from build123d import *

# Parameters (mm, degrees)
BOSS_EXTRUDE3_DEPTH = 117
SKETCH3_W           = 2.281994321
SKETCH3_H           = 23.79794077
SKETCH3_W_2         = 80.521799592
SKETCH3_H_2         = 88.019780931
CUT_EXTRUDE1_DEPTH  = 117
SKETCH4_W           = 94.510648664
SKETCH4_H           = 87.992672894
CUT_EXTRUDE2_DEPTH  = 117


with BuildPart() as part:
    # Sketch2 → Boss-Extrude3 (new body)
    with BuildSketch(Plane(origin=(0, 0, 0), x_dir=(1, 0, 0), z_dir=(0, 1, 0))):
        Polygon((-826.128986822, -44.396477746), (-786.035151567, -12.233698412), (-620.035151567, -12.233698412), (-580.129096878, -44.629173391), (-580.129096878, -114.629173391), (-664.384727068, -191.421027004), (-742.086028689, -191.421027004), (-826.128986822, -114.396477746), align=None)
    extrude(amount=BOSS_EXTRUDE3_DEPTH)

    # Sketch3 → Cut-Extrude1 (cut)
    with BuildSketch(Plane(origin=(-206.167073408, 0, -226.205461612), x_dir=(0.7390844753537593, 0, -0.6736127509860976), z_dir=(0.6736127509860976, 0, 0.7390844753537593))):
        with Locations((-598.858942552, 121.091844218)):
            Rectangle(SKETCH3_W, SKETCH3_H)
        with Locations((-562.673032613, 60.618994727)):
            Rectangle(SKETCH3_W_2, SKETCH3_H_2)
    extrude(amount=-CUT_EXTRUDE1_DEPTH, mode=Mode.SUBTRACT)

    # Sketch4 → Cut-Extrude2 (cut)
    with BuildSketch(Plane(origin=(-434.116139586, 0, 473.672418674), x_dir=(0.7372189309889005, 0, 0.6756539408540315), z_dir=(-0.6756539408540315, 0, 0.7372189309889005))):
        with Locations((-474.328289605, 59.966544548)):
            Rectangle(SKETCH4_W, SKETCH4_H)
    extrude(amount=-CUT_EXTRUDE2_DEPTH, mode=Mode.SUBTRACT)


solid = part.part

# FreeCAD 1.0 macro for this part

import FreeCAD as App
import Part
import Sketcher

V = App.Vector
Q = App.Units.Quantity

doc = App.newDocument("Part")
body = doc.addObject("PartDesign::Body", "Body")

# Sketch on XZ plane
sketch1 = doc.addObject("Sketcher::SketchObject", "Sketch")
body.addObject(sketch1)
sketch1.AttachmentSupport = (doc.XZ_Plane, [""])
sketch1.MapMode = "FlatFace"
sketch1.addGeometry([
    Part.LineSegment(V(-786, 12, 0), V(-826, 44, 0)),  # 0
    Part.LineSegment(V(-826, 44, 0), V(-826, 114, 0)),  # 1
    Part.LineSegment(V(-826, 114, 0), V(-742, 191, 0)),  # 2
    Part.LineSegment(V(-742, 191, 0), V(-664, 191, 0)),  # 3
    Part.LineSegment(V(-664, 191, 0), V(-580, 115, 0)),  # 4
    Part.LineSegment(V(-580, 115, 0), V(-580, 45, 0)),  # 5
    Part.LineSegment(V(-580, 45, 0), V(-620, 12, 0)),  # 6
    Part.LineSegment(V(-620, 12, 0), V(-786, 12, 0)),  # 7
], False)
sketch1.addConstraint([
    Sketcher.Constraint("Coincident", 0, 2, 1, 1),
    Sketcher.Constraint("Coincident", 1, 2, 2, 1),
    Sketcher.Constraint("Coincident", 2, 2, 3, 1),
    Sketcher.Constraint("Coincident", 3, 2, 4, 1),
    Sketcher.Constraint("Coincident", 4, 2, 5, 1),
    Sketcher.Constraint("Coincident", 5, 2, 6, 1),
    Sketcher.Constraint("Coincident", 6, 2, 7, 1),
    Sketcher.Constraint("Coincident", 7, 2, 0, 1),
    Sketcher.Constraint("Vertical", 1),
    Sketcher.Constraint("Horizontal", 3),
    Sketcher.Constraint("Vertical", 5),
    Sketcher.Constraint("Horizontal", 7),
    Sketcher.Constraint("Equal", 1, 5),
    Sketcher.Constraint("Equal", 2, 4),
    Sketcher.Constraint("Equal", 0, 6),
    Sketcher.Constraint("DistanceX", 7, 2, 7, 1, Q("166 mm")),
    Sketcher.Constraint("DistanceY", 1, 1, 1, 2, Q("70 mm")),
    Sketcher.Constraint("Distance", 2, Q("114 mm")),
    Sketcher.Constraint("Distance", 0, Q("51.4 mm")),
    Sketcher.Constraint("DistanceX", 3, 1, 3, 2, Q("77.701302 mm")),
    Sketcher.Constraint("DistanceY", -1, 1, 6, 2, Q("12.233698 mm")),
    Sketcher.Constraint("DistanceX", 2, 2, -1, 1, Q("742.086029 mm")),
    Sketcher.Constraint("DistanceX", 6, 2, -1, 1, Q("620.035152 mm")),
    Sketcher.Constraint("DistanceX", 1, 2, 2, 2, Q("84.042958 mm")),
])
pad1 = doc.addObject("PartDesign::Pad", "Pad")
body.addObject(pad1)
pad1.Profile = sketch1
pad1.Length = 117
pad1.Reversed = True

# Sketch on an angled plane
sketch2 = doc.addObject("Sketcher::SketchObject", "Sketch001")
body.addObject(sketch2)
sketch2.Placement = App.Placement(V(-206.167073, 0, -226.205462), App.Rotation(V(0.739084475, 0, -0.673612751), V(0, 0.999999999, 0), V(0.673612751, 0, 0.739084475), "ZXY"))
sketch2.addGeometry([
    Part.LineSegment(V(-600, 133, 0), V(-600, 109.2, 0)),  # 0
    Part.LineSegment(V(-600, 109.2, 0), V(-597.7, 109.2, 0)),  # 1
    Part.LineSegment(V(-597.7, 109.2, 0), V(-597.7, 133, 0)),  # 2
    Part.LineSegment(V(-597.7, 133, 0), V(-600, 133, 0)),  # 3
    Part.LineSegment(V(-602.9, 104.6, 0), V(-602.9, 16.6, 0)),  # 4
    Part.LineSegment(V(-602.9, 16.6, 0), V(-522.4, 16.6, 0)),  # 5
    Part.LineSegment(V(-522.4, 16.6, 0), V(-522.4, 104.6, 0)),  # 6
    Part.LineSegment(V(-522.4, 104.6, 0), V(-602.9, 104.6, 0)),  # 7
], False)
sketch2.addConstraint([
    Sketcher.Constraint("Coincident", 0, 2, 1, 1),
    Sketcher.Constraint("Coincident", 1, 2, 2, 1),
    Sketcher.Constraint("Coincident", 2, 2, 3, 1),
    Sketcher.Constraint("Coincident", 3, 2, 0, 1),
    Sketcher.Constraint("Coincident", 4, 2, 5, 1),
    Sketcher.Constraint("Coincident", 5, 2, 6, 1),
    Sketcher.Constraint("Coincident", 6, 2, 7, 1),
    Sketcher.Constraint("Coincident", 7, 2, 4, 1),
    Sketcher.Constraint("Vertical", 0),
    Sketcher.Constraint("Horizontal", 1),
    Sketcher.Constraint("Vertical", 2),
    Sketcher.Constraint("Horizontal", 3),
    Sketcher.Constraint("Vertical", 4),
    Sketcher.Constraint("Horizontal", 5),
    Sketcher.Constraint("Vertical", 6),
    Sketcher.Constraint("Horizontal", 7),
    Sketcher.Constraint("DistanceX", 5, 1, 5, 2, Q("80.5218 mm")),
    Sketcher.Constraint("DistanceY", 0, 2, 0, 1, Q("23.797941 mm")),
    Sketcher.Constraint("DistanceY", 4, 2, 4, 1, Q("88.019781 mm")),
    Sketcher.Constraint("DistanceX", 1, 1, 1, 2, Q("2.281994 mm")),
    Sketcher.Constraint("DistanceX", 0, 2, -1, 1, Q("599.999939 mm")),
    Sketcher.Constraint("DistanceY", 4, 2, 0, 2, Q("92.583769 mm")),
    Sketcher.Constraint("DistanceY", -1, 1, 0, 2, Q("109.192874 mm")),
    Sketcher.Constraint("DistanceX", 4, 2, -1, 1, Q("602.933932 mm")),
])
pocket1 = doc.addObject("PartDesign::Pocket", "Pocket")
body.addObject(pocket1)
pocket1.Profile = sketch2
pocket1.Length = 117

# Sketch on an angled plane
sketch3 = doc.addObject("Sketcher::SketchObject", "Sketch002")
body.addObject(sketch3)
sketch3.Placement = App.Placement(V(-434.11614, 0, 473.672419), App.Rotation(V(0.737218931, 0, 0.675653941), V(0, 1, 0), V(-0.675653941, 0, 0.737218931), "ZXY"))
sketch3.addGeometry([
    Part.LineSegment(V(-522, 104, 0), V(-522, 16, 0)),
    Part.LineSegment(V(-522, 16, 0), V(-427, 16, 0)),
    Part.LineSegment(V(-427, 16, 0), V(-427, 104, 0)),
    Part.LineSegment(V(-427, 104, 0), V(-522, 104, 0)),
], False)
sketch3.addConstraint([
    Sketcher.Constraint("Coincident", 0, 2, 1, 1),
    Sketcher.Constraint("Coincident", 1, 2, 2, 1),
    Sketcher.Constraint("Coincident", 2, 2, 3, 1),
    Sketcher.Constraint("Coincident", 3, 2, 0, 1),
    Sketcher.Constraint("Vertical", 0),
    Sketcher.Constraint("Horizontal", 1),
    Sketcher.Constraint("Vertical", 2),
    Sketcher.Constraint("Horizontal", 3),
    Sketcher.Constraint("DistanceX", 1, 1, 1, 2, Q("94.510649 mm")),
    Sketcher.Constraint("DistanceY", 0, 2, 0, 1, Q("87.992673 mm")),
    Sketcher.Constraint("DistanceY", -1, 1, 0, 2, Q("15.970208 mm")),
    Sketcher.Constraint("DistanceX", 0, 2, -1, 1, Q("521.583614 mm")),
])
pocket2 = doc.addObject("PartDesign::Pocket", "Pocket001")
body.addObject(pocket2)
pocket2.Profile = sketch3
pocket2.Length = 117

doc.recompute()
